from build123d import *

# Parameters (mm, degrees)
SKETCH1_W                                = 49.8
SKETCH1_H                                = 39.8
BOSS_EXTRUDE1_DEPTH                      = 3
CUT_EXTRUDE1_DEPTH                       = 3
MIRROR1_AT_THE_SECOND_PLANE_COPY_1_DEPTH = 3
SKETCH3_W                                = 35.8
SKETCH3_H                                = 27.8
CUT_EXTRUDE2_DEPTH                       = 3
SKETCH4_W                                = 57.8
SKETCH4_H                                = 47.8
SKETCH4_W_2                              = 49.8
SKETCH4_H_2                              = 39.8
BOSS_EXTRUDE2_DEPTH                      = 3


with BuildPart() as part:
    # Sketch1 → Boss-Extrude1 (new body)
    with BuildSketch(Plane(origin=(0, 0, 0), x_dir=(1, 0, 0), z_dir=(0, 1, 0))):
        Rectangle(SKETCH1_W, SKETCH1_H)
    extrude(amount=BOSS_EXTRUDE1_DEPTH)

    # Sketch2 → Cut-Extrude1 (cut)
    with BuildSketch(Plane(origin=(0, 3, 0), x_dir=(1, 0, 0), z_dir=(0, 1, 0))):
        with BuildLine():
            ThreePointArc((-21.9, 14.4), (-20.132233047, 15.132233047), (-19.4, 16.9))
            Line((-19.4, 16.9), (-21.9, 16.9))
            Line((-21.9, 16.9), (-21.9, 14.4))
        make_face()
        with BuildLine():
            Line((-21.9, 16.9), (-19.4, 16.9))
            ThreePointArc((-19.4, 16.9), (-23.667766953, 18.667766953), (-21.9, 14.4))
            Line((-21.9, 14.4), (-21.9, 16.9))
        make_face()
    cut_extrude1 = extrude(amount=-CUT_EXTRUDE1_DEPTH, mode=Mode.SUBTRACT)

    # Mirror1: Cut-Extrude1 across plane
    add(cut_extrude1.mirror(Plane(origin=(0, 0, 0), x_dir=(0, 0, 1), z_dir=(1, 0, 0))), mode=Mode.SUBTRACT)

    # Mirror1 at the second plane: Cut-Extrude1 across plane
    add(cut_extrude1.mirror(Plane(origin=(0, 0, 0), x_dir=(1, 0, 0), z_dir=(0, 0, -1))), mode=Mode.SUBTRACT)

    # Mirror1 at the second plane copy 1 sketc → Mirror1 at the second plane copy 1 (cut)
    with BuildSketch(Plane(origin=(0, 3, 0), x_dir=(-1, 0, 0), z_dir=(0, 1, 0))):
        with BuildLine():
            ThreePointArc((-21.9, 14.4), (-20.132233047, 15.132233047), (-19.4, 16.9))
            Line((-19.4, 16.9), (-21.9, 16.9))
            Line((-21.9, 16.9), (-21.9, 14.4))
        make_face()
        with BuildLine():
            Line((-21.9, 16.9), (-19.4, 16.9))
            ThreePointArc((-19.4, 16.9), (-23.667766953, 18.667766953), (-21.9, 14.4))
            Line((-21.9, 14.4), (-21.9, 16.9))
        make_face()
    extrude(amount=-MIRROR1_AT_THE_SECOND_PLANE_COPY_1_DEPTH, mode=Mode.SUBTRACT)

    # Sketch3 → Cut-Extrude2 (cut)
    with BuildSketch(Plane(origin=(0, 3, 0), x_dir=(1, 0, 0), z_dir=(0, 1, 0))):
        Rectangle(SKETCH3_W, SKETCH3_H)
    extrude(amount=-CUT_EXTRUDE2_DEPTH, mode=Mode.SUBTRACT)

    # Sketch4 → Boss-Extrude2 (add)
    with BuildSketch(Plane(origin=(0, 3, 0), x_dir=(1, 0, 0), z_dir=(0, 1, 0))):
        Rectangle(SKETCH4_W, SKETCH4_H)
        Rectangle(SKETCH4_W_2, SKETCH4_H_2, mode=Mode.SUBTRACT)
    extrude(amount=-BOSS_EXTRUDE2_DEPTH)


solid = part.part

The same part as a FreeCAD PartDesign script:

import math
import FreeCAD as App
import Part
import Sketcher
Q = App.Units.Quantity


def add_polygon(sketch, points):
    """Adds a closed chain of lines whose ends are joined by coincident constraints."""
    first, n = sketch.GeometryCount, len(points)
    for a, b in zip(points, points[1:] + points[:1]):
        sketch.addGeometry(Part.LineSegment(App.Vector(*a, 0), App.Vector(*b, 0)), False)
    for i in range(n):
        sketch.addConstraint(Sketcher.Constraint("Coincident", first + i, 2, first + (i + 1) % n, 1))

doc = App.newDocument("Part")
body = doc.addObject("PartDesign::Body", "Body")

# Sketch on XZ plane
sketch1 = body.newObject("Sketcher::SketchObject", "Sketch")
sketch1.AttachmentSupport = (doc.getObject("XZ_Plane"), [""])
sketch1.MapMode = "FlatFace"
add_polygon(sketch1, [(-24.9, -19.9), (-24.9, 19.9), (24.9, 19.9), (24.9, -19.9)])  # lines 0-3
sketch1.addConstraint([
    Sketcher.Constraint("Vertical", 0),
    Sketcher.Constraint("Horizontal", 1),
    Sketcher.Constraint("Vertical", 2),
    Sketcher.Constraint("Horizontal", 3),
    Sketcher.Constraint("Symmetric", 0, 2, 2, 2, -1, 1),
    Sketcher.Constraint("DistanceX", 1, 1, 1, 2, Q("49.8 mm")),
    Sketcher.Constraint("DistanceY", 0, 1, 0, 2, Q("39.8 mm")),
])
pad1 = body.newObject("PartDesign::Pad", "Pad")
pad1.Profile = sketch1
pad1.Length = 3
pad1.Reversed = True

# Sketch on XZ plane
sketch2 = body.newObject("Sketcher::SketchObject", "Sketch001")
sketch2.AttachmentSupport = (doc.getObject("XZ_Plane"), [""])
sketch2.MapMode = "FlatFace"
sketch2.AttachmentOffset = App.Placement(App.Vector(0, 0, -3), App.Rotation())
sketch2.addGeometry([
    Part.ArcOfCircle(Part.Circle(App.Vector(-21.9, -16.9, 0), App.Vector(0, 0, 1), 2.5), math.radians(0), math.radians(90)),
    Part.ArcOfCircle(Part.Circle(App.Vector(-21.9, -16.9, 0), App.Vector(0, 0, 1), 2.5), math.radians(90), math.radians(360)),
], False)
sketch2.addConstraint([
    Sketcher.Constraint("Tangent", 0, 1, 1, 2),
    Sketcher.Constraint("Coincident", 1, 1, 0, 2),
    Sketcher.Constraint("Horizontal", 1, 3, 0, 1),
    Sketcher.Constraint("Vertical", 0, 3, 1, 1),
    Sketcher.Constraint("Radius", 0, Q("2.5 mm")),
    Sketcher.Constraint("DistanceX", 0, 3, -1, 1, Q("21.9 mm")),
    Sketcher.Constraint("DistanceY", 0, 3, -1, 1, Q("16.9 mm")),
])
pocket1 = body.newObject("PartDesign::Pocket", "Pocket")
pocket1.Profile = sketch2
pocket1.Length = 3
pocket1.Reversed = True
doc.recompute()

mirrored = body.newObject("PartDesign::Mirrored", "Mirrored")
mirrored.Originals = [pocket1]
mirrored.MirrorPlane = (doc.getObject("YZ_Plane"), [""])
body.Tip = mirrored
doc.recompute()

mirrored2 = body.newObject("PartDesign::Mirrored", "Mirrored001")
mirrored2.Originals = [pocket1]
mirrored2.MirrorPlane = (doc.getObject("XY_Plane"), [""])
body.Tip = mirrored2

# Sketch on XZ plane
sketch3 = body.newObject("Sketcher::SketchObject", "Sketch002")
sketch3.AttachmentSupport = (doc.getObject("XZ_Plane"), [""])
sketch3.MapMode = "FlatFace"
sketch3.AttachmentOffset = App.Placement(App.Vector(0, 0, -3), App.Rotation())
sketch3.addGeometry([
    Part.ArcOfCircle(Part.Circle(App.Vector(21.9, 16.9, 0), App.Vector(0, 0, 1), 2.5), math.radians(180), math.radians(270)),
    Part.ArcOfCircle(Part.Circle(App.Vector(21.9, 16.9, 0), App.Vector(0, 0, 1), 2.5), math.radians(-90), math.radians(180)),
], False)
sketch3.addConstraint([
    Sketcher.Constraint("Tangent", 0, 1, 1, 2),
    Sketcher.Constraint("Coincident", 1, 1, 0, 2),
    Sketcher.Constraint("Horizontal", 1, 3, 0, 1),
    Sketcher.Constraint("Vertical", 0, 3, 1, 1),
    Sketcher.Constraint("Radius", 0, Q("2.5 mm")),
    Sketcher.Constraint("DistanceX", -1, 1, 0, 3, Q("21.9 mm")),
    Sketcher.Constraint("DistanceY", -1, 1, 0, 3, Q("16.9 mm")),
])
pocket2 = body.newObject("PartDesign::Pocket", "Pocket001")
pocket2.Profile = sketch3
pocket2.Length = 3
pocket2.Reversed = True

# Sketch on XZ plane
sketch4 = body.newObject("Sketcher::SketchObject", "Sketch003")
sketch4.AttachmentSupport = (doc.getObject("XZ_Plane"), [""])
sketch4.MapMode = "FlatFace"
sketch4.AttachmentOffset = App.Placement(App.Vector(0, 0, -3), App.Rotation())
add_polygon(sketch4, [(-17.9, -13.9), (-17.9, 13.9), (17.9, 13.9), (17.9, -13.9)])  # lines 0-3
sketch4.addConstraint([
    Sketcher.Constraint("Vertical", 0),
    Sketcher.Constraint("Horizontal", 1),
    Sketcher.Constraint("Vertical", 2),
    Sketcher.Constraint("Horizontal", 3),
    Sketcher.Constraint("Symmetric", 0, 2, 2, 2, -1, 1),
    Sketcher.Constraint("DistanceX", 1, 1, 1, 2, Q("35.8 mm")),
    Sketcher.Constraint("DistanceY", 0, 1, 0, 2, Q("27.8 mm")),
])
pocket3 = body.newObject("PartDesign::Pocket", "Pocket002")
pocket3.Profile = sketch4
pocket3.Length = 3
pocket3.Reversed = True

# Sketch on XZ plane
sketch5 = body.newObject("Sketcher::SketchObject", "Sketch004")
sketch5.AttachmentSupport = (doc.getObject("XZ_Plane"), [""])
sketch5.MapMode = "FlatFace"
sketch5.AttachmentOffset = App.Placement(App.Vector(0, 0, -3), App.Rotation())
add_polygon(sketch5, [(-28.9, -23.9), (-28.9, 23.9), (28.9, 23.9), (28.9, -23.9)])  # lines 0-3
add_polygon(sketch5, [(24.9, 19.9), (-24.9, 19.9), (-24.9, -19.9), (24.9, -19.9)])  # lines 4-7
sketch5.addConstraint([
    Sketcher.Constraint("Vertical", 0),
    Sketcher.Constraint("Horizontal", 1),
    Sketcher.Constraint("Vertical", 2),
    Sketcher.Constraint("Horizontal", 3),
    Sketcher.Constraint("Horizontal", 4),
    Sketcher.Constraint("Vertical", 5),
    Sketcher.Constraint("Horizontal", 6),
    Sketcher.Constraint("Vertical", 7),
    Sketcher.Constraint("Symmetric", 0, 2, 2, 2, -1, 1),
    Sketcher.Constraint("Symmetric", 4, 2, 6, 2, -1, 1),
    Sketcher.Constraint("DistanceX", 1, 1, 1, 2, Q("57.8 mm")),
    Sketcher.Constraint("DistanceX", 4, 2, 4, 1, Q("49.8 mm")),
    Sketcher.Constraint("DistanceY", 0, 1, 0, 2, Q("47.8 mm")),
    Sketcher.Constraint("DistanceY", 5, 2, 5, 1, Q("39.8 mm")),
])
pad2 = body.newObject("PartDesign::Pad", "Pad001")
pad2.Profile = sketch5
pad2.Length = 3

doc.recompute()
